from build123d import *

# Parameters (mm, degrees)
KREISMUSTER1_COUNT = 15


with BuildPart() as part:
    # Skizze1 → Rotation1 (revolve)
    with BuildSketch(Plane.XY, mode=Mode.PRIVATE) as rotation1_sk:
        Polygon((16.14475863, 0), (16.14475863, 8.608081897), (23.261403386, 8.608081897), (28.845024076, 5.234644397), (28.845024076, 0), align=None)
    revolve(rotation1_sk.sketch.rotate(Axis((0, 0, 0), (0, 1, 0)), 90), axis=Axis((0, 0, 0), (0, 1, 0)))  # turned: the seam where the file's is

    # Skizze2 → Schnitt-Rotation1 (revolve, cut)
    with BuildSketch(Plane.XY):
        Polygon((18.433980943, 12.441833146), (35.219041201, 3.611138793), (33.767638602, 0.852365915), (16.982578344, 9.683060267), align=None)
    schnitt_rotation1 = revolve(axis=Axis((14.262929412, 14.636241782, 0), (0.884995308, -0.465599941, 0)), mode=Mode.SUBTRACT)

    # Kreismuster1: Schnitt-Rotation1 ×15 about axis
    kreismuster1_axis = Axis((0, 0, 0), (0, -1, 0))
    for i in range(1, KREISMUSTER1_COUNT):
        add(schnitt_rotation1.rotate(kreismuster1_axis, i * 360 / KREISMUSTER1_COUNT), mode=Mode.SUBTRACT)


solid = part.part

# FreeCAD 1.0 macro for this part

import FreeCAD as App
import Part
import Sketcher
from FreeCAD import Vector
Q = App.Units.Quantity


def add_polygon(sketch, points):
    """Adds a closed chain of lines whose ends are joined by coincident constraints."""
    first, n = sketch.GeometryCount, len(points)
    for a, b in zip(points, points[1:] + points[:1]):
        sketch.addGeometry(Part.LineSegment(App.Vector(*a, 0), App.Vector(*b, 0)), False)
    for i in range(n):
        sketch.addConstraint(Sketcher.Constraint("Coincident", first + i, 2, first + (i + 1) % n, 1))

doc = App.newDocument("Part")
body = doc.addObject("PartDesign::Body", "Body")

sketch1 = doc.addObject("Sketcher::SketchObject", "Sketch")
body.addObject(sketch1)
sketch1.AttachmentSupport = (doc.XY_Plane, [""])
sketch1.MapMode = "FlatFace"
add_polygon(sketch1, [(16.144759, 8.608082), (16.144759, 0), (28.845024, 0), (28.845024, 5.234644), (23.261403, 8.608082)])
sketch1.addConstraint([
    Sketcher.Constraint("Vertical", 0),
    Sketcher.Constraint("Horizontal", 1),
    Sketcher.Constraint("Vertical", 2),
    Sketcher.Constraint("Horizontal", 4),
    Sketcher.Constraint("PointOnObject", 0, 2, -1),
    Sketcher.Constraint("DistanceY", 0, 2, 0, 1, Q("8.608082 mm")),
    Sketcher.Constraint("DistanceX", 1, 1, 1, 2, Q("12.700265 mm")),
    Sketcher.Constraint("DistanceX", 4, 2, 4, 1, Q("7.116645 mm")),
    Sketcher.Constraint("DistanceY", 2, 1, 2, 2, Q("5.234644 mm")),
    Sketcher.Constraint("DistanceX", -1, 1, 0, 2, Q("16.144759 mm")),
])
revolution = doc.addObject("PartDesign::Revolution", "Revolution")
body.addObject(revolution)
revolution.Profile = sketch1
revolution.ReferenceAxis = (sketch1, ["V_Axis"])
revolution.Angle = 360

sketch2 = doc.addObject("Sketcher::SketchObject", "Sketch001")
body.addObject(sketch2)
sketch2.AttachmentSupport = (doc.XY_Plane, [""])
sketch2.MapMode = "FlatFace"
add_polygon(sketch2, [(35.219041, 3.611139), (18.433981, 12.441833), (16.982578, 9.68306), (33.767639, 0.852366)])
sketch2.addGeometry(Part.LineSegment(Vector(18.433981, 12.441833, 0), Vector(35.219041, 3.611139, 0)), True)
sketch2.addConstraint([
    Sketcher.Constraint("Coincident", 4, 1, 0, 2),
    Sketcher.Constraint("Coincident", 4, 2, 3, 2),
    Sketcher.Constraint("Perpendicular", 0, 1),
    Sketcher.Constraint("Perpendicular", 1, 2),
    Sketcher.Constraint("Perpendicular", 2, 3),
    Sketcher.Constraint("Distance", 0, Q("18.96627 mm")),
    Sketcher.Constraint("DistanceX", -1, 1, 0, 2, Q("18.433981 mm")),
    Sketcher.Constraint("DistanceX", -1, 1, 1, 2, Q("16.982578 mm")),
    Sketcher.Constraint("DistanceY", -1, 1, 1, 2, Q("9.68306 mm")),
    Sketcher.Constraint("DistanceX", -1, 1, 2, 2, Q("33.767639 mm")),
])
groove = doc.addObject("PartDesign::Groove", "Groove")
body.addObject(groove)
groove.Profile = sketch2
groove.ReferenceAxis = (sketch2, ["Axis0"])
groove.Angle = 360
doc.recompute()

polarpattern = doc.addObject("PartDesign::PolarPattern", "PolarPattern")
body.addObject(polarpattern)
polarpattern.Originals = [groove]
polarpattern.Axis = (doc.Y_Axis, [""])
polarpattern.Angle = 360
polarpattern.Occurrences = 15
body.Tip = polarpattern

doc.recompute()
